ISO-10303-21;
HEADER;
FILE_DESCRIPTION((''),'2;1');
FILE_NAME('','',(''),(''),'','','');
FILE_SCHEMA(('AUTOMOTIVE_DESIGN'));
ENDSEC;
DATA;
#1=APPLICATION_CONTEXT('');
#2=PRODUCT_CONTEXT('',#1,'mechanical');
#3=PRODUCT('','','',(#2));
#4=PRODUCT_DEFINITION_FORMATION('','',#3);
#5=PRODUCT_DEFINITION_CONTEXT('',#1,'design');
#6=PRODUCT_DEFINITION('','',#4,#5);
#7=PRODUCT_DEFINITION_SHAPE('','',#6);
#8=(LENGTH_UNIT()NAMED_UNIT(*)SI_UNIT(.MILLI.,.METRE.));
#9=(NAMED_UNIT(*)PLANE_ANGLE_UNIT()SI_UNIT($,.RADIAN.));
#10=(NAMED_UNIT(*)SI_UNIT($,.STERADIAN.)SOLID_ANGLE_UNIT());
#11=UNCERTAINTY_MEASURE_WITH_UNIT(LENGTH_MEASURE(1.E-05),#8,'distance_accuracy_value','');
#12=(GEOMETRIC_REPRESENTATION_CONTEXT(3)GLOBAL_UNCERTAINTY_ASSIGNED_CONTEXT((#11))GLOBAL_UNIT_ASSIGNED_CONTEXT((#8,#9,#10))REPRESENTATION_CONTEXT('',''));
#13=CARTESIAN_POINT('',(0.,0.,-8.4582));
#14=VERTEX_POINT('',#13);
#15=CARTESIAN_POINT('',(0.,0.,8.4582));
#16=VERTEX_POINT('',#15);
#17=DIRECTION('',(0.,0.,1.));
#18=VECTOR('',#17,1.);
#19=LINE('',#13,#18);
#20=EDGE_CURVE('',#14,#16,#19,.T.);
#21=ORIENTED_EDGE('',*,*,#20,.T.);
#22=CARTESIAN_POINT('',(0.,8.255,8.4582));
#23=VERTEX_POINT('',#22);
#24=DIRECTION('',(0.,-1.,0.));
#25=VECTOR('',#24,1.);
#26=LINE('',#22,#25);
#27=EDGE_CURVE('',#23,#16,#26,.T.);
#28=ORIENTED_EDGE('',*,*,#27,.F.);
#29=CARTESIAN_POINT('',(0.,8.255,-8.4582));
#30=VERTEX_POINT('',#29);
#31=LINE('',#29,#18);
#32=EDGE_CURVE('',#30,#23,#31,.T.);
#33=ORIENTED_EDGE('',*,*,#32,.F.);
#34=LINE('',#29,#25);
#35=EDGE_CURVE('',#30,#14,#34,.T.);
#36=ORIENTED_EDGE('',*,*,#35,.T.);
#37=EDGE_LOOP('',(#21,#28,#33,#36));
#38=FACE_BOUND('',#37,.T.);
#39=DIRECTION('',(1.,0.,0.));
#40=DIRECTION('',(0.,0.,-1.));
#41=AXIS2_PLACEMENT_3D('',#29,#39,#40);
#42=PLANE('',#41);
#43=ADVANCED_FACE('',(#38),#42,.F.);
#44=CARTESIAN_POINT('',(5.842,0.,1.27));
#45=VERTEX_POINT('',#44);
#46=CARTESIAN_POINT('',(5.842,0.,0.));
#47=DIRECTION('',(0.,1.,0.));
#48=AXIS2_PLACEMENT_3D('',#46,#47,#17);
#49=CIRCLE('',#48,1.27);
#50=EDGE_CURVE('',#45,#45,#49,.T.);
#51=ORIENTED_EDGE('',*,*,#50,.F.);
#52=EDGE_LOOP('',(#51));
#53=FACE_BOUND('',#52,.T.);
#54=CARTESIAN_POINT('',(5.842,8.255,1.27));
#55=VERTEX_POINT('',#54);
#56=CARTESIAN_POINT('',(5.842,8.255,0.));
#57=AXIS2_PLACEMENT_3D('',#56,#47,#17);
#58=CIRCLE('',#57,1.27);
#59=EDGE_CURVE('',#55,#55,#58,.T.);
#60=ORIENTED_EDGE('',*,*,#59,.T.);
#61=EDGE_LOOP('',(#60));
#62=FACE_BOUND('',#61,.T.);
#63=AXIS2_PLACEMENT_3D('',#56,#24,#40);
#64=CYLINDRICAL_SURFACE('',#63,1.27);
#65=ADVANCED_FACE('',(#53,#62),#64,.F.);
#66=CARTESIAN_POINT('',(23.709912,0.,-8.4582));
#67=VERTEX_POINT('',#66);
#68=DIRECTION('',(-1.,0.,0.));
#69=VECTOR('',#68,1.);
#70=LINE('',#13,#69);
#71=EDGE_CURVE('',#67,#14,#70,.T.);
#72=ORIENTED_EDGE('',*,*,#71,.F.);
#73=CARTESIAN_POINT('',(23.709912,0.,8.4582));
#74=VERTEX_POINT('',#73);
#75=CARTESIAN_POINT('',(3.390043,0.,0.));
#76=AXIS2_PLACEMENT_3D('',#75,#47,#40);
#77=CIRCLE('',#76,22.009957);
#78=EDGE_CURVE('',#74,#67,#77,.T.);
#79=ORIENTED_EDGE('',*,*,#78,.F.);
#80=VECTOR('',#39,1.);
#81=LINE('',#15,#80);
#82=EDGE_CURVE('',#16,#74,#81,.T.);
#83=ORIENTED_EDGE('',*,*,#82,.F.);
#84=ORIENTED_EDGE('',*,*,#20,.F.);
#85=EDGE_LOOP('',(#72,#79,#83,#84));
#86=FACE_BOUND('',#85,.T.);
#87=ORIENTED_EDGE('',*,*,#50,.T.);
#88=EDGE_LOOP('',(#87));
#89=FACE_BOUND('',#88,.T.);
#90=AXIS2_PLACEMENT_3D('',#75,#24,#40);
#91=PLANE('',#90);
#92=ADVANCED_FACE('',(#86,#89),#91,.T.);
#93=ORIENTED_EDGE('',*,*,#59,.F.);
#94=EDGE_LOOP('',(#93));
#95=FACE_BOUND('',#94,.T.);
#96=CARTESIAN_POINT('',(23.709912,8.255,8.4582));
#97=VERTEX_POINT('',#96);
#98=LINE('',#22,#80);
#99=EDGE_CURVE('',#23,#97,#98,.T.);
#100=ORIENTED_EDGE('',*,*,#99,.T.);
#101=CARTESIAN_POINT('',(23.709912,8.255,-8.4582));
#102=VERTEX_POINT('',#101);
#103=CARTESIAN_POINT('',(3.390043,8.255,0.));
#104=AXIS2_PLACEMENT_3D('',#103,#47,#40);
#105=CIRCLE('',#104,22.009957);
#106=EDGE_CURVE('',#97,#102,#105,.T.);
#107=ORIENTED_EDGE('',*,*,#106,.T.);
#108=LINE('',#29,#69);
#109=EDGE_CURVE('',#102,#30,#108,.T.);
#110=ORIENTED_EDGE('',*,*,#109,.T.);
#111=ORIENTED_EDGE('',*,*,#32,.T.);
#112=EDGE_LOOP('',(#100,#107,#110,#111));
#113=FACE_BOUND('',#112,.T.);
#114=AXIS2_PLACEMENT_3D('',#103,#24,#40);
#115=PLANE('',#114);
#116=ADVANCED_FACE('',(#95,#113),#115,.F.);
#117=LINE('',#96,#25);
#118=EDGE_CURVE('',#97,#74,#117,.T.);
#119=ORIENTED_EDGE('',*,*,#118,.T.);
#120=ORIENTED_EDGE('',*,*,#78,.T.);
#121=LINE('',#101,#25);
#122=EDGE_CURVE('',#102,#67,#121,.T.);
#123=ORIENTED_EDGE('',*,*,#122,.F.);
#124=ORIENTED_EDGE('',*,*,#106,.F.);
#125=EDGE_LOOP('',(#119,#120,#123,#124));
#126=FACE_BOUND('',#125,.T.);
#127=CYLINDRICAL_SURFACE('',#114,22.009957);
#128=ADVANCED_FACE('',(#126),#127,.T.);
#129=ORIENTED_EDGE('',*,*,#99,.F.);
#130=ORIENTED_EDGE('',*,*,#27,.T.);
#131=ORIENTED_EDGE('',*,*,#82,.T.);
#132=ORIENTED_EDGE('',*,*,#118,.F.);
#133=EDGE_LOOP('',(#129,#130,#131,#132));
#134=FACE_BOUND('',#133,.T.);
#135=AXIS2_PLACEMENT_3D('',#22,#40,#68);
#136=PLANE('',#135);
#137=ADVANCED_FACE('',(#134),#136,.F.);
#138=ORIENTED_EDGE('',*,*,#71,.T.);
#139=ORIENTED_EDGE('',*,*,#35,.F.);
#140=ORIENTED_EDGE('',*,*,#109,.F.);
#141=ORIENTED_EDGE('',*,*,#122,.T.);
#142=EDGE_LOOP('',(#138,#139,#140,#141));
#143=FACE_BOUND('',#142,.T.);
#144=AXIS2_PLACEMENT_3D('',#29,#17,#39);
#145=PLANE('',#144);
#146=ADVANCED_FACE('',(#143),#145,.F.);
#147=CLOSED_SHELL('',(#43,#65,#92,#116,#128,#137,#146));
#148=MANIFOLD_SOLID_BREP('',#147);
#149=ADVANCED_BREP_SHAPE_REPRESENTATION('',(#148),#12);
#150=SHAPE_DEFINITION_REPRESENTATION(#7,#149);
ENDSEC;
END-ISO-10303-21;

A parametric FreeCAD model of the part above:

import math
import FreeCAD as App
import Part
import Sketcher
Q = App.Units.Quantity

doc = App.newDocument("Part")
body = doc.addObject("PartDesign::Body", "Body")

# Sketch on XZ plane
sketch1 = doc.addObject("Sketcher::SketchObject", "Sketch")
body.addObject(sketch1)
sketch1.AttachmentSupport = (doc.XZ_Plane, [""])
sketch1.MapMode = "FlatFace"
sketch1.addGeometry([
    Part.LineSegment(App.Vector(23.7, -8.5, 0), App.Vector(0, -8.5, 0)),  # 0
    Part.LineSegment(App.Vector(0, -8.5, 0), App.Vector(0, 8.5, 0)),  # 1
    Part.LineSegment(App.Vector(0, 8.5, 0), App.Vector(23.7, 8.5, 0)),  # 2
    Part.ArcOfCircle(Part.Circle(App.Vector(3.4, 0, 0), App.Vector(0, 0, 1), 22), math.radians(-23), math.radians(23)),  # 3
    Part.Circle(App.Vector(5.8, 0, 0), App.Vector(0, 0, 1), 1.3),  # 4
], False)
sketch1.addConstraint([
    Sketcher.Constraint("Coincident", 0, 2, 1, 1),
    Sketcher.Constraint("Coincident", 1, 2, 2, 1),
    Sketcher.Constraint("Coincident", 2, 2, 3, 2),
    Sketcher.Constraint("Coincident", 3, 1, 0, 1),
    Sketcher.Constraint("Horizontal", 0),
    Sketcher.Constraint("Vertical", 1),
    Sketcher.Constraint("Horizontal", 2),
    Sketcher.Constraint("Symmetric", 0, 2, 1, 2, -1, 1),
    Sketcher.Constraint("PointOnObject", 3, 3, -1),
    Sketcher.Constraint("PointOnObject", 4, 3, -1),
    Sketcher.Constraint("Diameter", 4, Q("0.1 in")),
    Sketcher.Constraint("DistanceY", 1, 1, 1, 2, Q("0.666 in")),
    Sketcher.Constraint("DistanceX", -1, 1, 4, 3, Q("0.23 in")),
    Sketcher.Constraint("Radius", 3, 22.009957),
    Sketcher.Constraint("DistanceX", 0, 2, 0, 1, 23.709912),
])
pad1 = doc.addObject("PartDesign::Pad", "Pad")
body.addObject(pad1)
pad1.Profile = sketch1
pad1.Length = Q("0.325 in")
pad1.Reversed = True

doc.recompute()
